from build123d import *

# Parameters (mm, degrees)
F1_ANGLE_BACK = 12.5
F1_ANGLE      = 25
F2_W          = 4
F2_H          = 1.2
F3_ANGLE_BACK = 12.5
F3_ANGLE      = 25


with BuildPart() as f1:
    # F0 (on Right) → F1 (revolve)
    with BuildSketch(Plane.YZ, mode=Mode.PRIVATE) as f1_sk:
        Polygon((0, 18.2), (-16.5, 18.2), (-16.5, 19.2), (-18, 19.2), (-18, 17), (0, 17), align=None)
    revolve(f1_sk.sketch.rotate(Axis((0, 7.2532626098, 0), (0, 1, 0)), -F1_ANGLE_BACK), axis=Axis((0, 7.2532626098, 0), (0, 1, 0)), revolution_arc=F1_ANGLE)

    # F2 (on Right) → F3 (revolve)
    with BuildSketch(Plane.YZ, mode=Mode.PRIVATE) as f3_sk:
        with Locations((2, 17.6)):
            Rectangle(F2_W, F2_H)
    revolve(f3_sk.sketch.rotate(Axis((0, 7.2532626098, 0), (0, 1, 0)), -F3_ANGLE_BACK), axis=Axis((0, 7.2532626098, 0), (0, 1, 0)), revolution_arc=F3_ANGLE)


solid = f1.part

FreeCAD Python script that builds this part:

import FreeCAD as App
import Part
import Sketcher
from FreeCAD import Vector


def add_polygon(sketch, points):
    """Adds a closed chain of lines whose ends are joined by coincident constraints."""
    first, n = sketch.GeometryCount, len(points)
    for a, b in zip(points, points[1:] + points[:1]):
        sketch.addGeometry(Part.LineSegment(App.Vector(*a, 0), App.Vector(*b, 0)), False)
    for i in range(n):
        sketch.addConstraint(Sketcher.Constraint("Coincident", first + i, 2, first + (i + 1) % n, 1))

doc = App.newDocument("Part")
params = doc.addObject("Spreadsheet::Sheet", "Params")
for row, (alias, value) in enumerate([
    ("sketch1_width", "18 mm"),
    ("sketch1_height", "1 mm"),
    ("sketch1_width2", "16.5 mm"),
    ("sketch1_height2", "2.2 mm"),
    ("revolution_angle", "25 deg"),
    ("sketch2_width", "4 mm"),
    ("sketch2_height", "1.2 mm"),
    ("revolution2_angle", "25 deg"),
], start=1):
    params.set(f"A{row}", alias)
    params.set(f"B{row}", "=" + value)
    params.setAlias(f"B{row}", alias)

body = doc.addObject("PartDesign::Body", "Body")

# Sketch on an angled plane
sketch1 = body.newObject("Sketcher::SketchObject", "Sketch")
sketch1.Placement = App.Placement(Vector(0, 0, 0), App.Rotation(Vector(0, 1, 0), Vector(-0.216439614, 0, 0.976296007), Vector(0.976296007, 0, 0.216439614), "ZXY"))
add_polygon(sketch1, [(0, 18.2), (-16.5, 18.2), (-16.5, 19.2), (-18, 19.2), (-18, 17), (0, 17)])  # lines 0-5
sketch1.addConstraint([
    Sketcher.Constraint("Horizontal", 0),
    Sketcher.Constraint("Vertical", 1),
    Sketcher.Constraint("Horizontal", 2),
    Sketcher.Constraint("Vertical", 3),
    Sketcher.Constraint("Horizontal", 4),
    Sketcher.Constraint("Vertical", 5),
    Sketcher.Constraint("PointOnObject", 4, 2, -2),
    Sketcher.Constraint("DistanceX", 4, 1, 4, 2, 18.0),
    Sketcher.Constraint("DistanceY", 1, 1, 1, 2, 1.0),
    Sketcher.Constraint("DistanceX", 0, 2, 0, 1, 16.5),
    Sketcher.Constraint("DistanceY", 3, 2, 3, 1, 2.2),
    Sketcher.Constraint("DistanceY", -1, 1, 3, 2, 17.0),
])
sketch1.setExpression("Constraints[13]", "Params.sketch1_width")
sketch1.setExpression("Constraints[14]", "Params.sketch1_height")
sketch1.setExpression("Constraints[15]", "Params.sketch1_width2")
sketch1.setExpression("Constraints[16]", "Params.sketch1_height2")
revolution = body.newObject("PartDesign::Revolution", "Revolution")
revolution.Profile = sketch1
revolution.ReferenceAxis = (sketch1, ["H_Axis"])
revolution.setExpression("Angle", "Params.revolution_angle")

# Sketch on an angled plane
sketch2 = body.newObject("Sketcher::SketchObject", "Sketch001")
sketch2.Placement = App.Placement(Vector(0, 0, 0), App.Rotation(Vector(0, 1, 0), Vector(-0.216439614, 0, 0.976296007), Vector(0.976296007, 0, 0.216439614), "ZXY"))
add_polygon(sketch2, [(0, 18.2), (0, 17), (4, 17), (4, 18.2)])  # lines 0-3
sketch2.addConstraint([
    Sketcher.Constraint("Vertical", 0),
    Sketcher.Constraint("Horizontal", 1),
    Sketcher.Constraint("Vertical", 2),
    Sketcher.Constraint("Horizontal", 3),
    Sketcher.Constraint("PointOnObject", 0, 2, -2),
    Sketcher.Constraint("DistanceX", 1, 1, 1, 2, 4.0),
    Sketcher.Constraint("DistanceY", 0, 2, 0, 1, 1.2),
    Sketcher.Constraint("DistanceY", -1, 1, 0, 2, 17.0),
])
sketch2.setExpression("Constraints[9]", "Params.sketch2_width")
sketch2.setExpression("Constraints[10]", "Params.sketch2_height")
revolution2 = body.newObject("PartDesign::Revolution", "Revolution001")
revolution2.Profile = sketch2
revolution2.ReferenceAxis = (sketch2, ["H_Axis"])
revolution2.setExpression("Angle", "Params.revolution2_angle")

doc.recompute()
